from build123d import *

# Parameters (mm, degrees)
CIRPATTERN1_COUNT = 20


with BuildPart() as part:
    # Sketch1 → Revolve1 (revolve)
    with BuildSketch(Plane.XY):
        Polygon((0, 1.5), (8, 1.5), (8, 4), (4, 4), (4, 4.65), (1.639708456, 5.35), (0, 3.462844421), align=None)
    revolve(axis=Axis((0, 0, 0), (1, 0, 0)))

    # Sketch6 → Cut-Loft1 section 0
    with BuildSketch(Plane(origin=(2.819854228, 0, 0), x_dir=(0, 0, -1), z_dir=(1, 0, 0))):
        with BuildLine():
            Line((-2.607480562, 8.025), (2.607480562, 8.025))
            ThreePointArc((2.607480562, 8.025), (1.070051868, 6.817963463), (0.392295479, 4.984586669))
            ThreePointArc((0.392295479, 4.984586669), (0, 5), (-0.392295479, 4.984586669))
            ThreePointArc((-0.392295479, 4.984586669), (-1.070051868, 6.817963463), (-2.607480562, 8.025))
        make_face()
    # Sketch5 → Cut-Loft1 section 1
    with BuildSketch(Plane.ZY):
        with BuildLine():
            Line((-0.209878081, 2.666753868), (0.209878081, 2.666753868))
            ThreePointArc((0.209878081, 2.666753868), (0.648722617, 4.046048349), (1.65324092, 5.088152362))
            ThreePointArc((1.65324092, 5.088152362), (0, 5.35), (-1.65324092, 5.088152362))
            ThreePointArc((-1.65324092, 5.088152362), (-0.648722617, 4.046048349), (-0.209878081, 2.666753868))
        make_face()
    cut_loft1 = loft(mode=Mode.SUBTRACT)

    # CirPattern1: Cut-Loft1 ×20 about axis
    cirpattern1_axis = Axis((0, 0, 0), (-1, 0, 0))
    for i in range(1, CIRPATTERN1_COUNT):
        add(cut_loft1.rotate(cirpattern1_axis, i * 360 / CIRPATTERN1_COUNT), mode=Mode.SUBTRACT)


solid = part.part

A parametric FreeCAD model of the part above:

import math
import FreeCAD as App
import Part
import Sketcher

V = App.Vector
Q = App.Units.Quantity

doc = App.newDocument("Part")
body = doc.addObject("PartDesign::Body", "Body")

# Sketch on XY plane
sketch1 = body.newObject("Sketcher::SketchObject", "Sketch")
sketch1.AttachmentSupport = (doc.getObject("XY_Plane"), [""])
sketch1.MapMode = "FlatFace"
sketch1.addGeometry(Part.LineSegment(V(0, 1.5, 0), V(8, 1.5, 0)), False)
sketch1.addGeometry(Part.LineSegment(V(8, 1.5, 0), V(8, 4, 0)), False)
sketch1.addGeometry(Part.LineSegment(V(8, 4, 0), V(4, 4, 0)), False)
sketch1.addGeometry(Part.LineSegment(V(4, 4, 0), V(4, 4.7, 0)), False)
sketch1.addGeometry(Part.LineSegment(V(4, 4.7, 0), V(1.6, 5.3, 0)), False)
sketch1.addGeometry(Part.LineSegment(V(1.6, 5.3, 0), V(0, 3.5, 0)), False)
sketch1.addGeometry(Part.LineSegment(V(0, 3.5, 0), V(0, 1.5, 0)), False)
sketch1.addConstraint(Sketcher.Constraint("Coincident", 0, 2, 1, 1))
sketch1.addConstraint(Sketcher.Constraint("Coincident", 1, 2, 2, 1))
sketch1.addConstraint(Sketcher.Constraint("Coincident", 2, 2, 3, 1))
sketch1.addConstraint(Sketcher.Constraint("Coincident", 3, 2, 4, 1))
sketch1.addConstraint(Sketcher.Constraint("Coincident", 4, 2, 5, 1))
sketch1.addConstraint(Sketcher.Constraint("Coincident", 5, 2, 6, 1))
sketch1.addConstraint(Sketcher.Constraint("Coincident", 6, 2, 0, 1))
sketch1.addConstraint(Sketcher.Constraint("Horizontal", 0))
sketch1.addConstraint(Sketcher.Constraint("Vertical", 1))
sketch1.addConstraint(Sketcher.Constraint("Horizontal", 2))
sketch1.addConstraint(Sketcher.Constraint("Vertical", 3))
sketch1.addConstraint(Sketcher.Constraint("Vertical", 6))
sketch1.addConstraint(Sketcher.Constraint("PointOnObject", 5, 2, -2))
sketch1.addConstraint(Sketcher.Constraint("DistanceX", 0, 1, 0, 2, Q("8 mm")))
sketch1.addConstraint(Sketcher.Constraint("DistanceX", 2, 2, 2, 1, Q("4 mm")))
sketch1.addConstraint(Sketcher.Constraint("DistanceY", 1, 1, 1, 2, Q("2.5 mm")))
sketch1.addConstraint(Sketcher.Constraint("DistanceY", -1, 1, 1, 2, Q("4 mm")))
sketch1.addConstraint(Sketcher.Constraint("Distance", 5, Q("2.5 mm")))
sketch1.addConstraint(Sketcher.Constraint("DistanceY", 3, 1, 3, 2, Q("0.65 mm")))
sketch1.addConstraint(Sketcher.Constraint("DistanceY", 3, 2, 4, 2, Q("0.7 mm")))
sketch1.addConstraint(Sketcher.Constraint("DistanceY", 6, 2, 6, 1, Q("1.962844 mm")))
revolution = body.newObject("PartDesign::Revolution", "Revolution")
revolution.Profile = sketch1
revolution.ReferenceAxis = (sketch1, ["H_Axis"])
revolution.Angle = 360

# Sketch on YZ plane
sketch2 = body.newObject("Sketcher::SketchObject", "Sketch001")
sketch2.AttachmentSupport = (doc.getObject("YZ_Plane"), [""])
sketch2.MapMode = "FlatFace"
sketch2.AttachmentOffset = App.Placement(V(0, 0, 2.819854), App.Rotation())
sketch2.addGeometry(Part.LineSegment(V(8, -2.6, 0), V(8, 2.6, 0)), False)
sketch2.addGeometry(Part.ArcOfCircle(Part.Circle(V(4.7, 4, 0), V(0, 0, 1), 3.6), math.radians(-86), math.radians(-22)), False)
sketch2.addGeometry(Part.ArcOfCircle(Part.Circle(V(0, 0, 0), V(0, 0, 1), 5), math.radians(-4.5), math.radians(4.5)), False)
sketch2.addGeometry(Part.ArcOfCircle(Part.Circle(V(4.7, -4, 0), V(0, 0, 1), 3.6), math.radians(22), math.radians(86)), False)
sketch2.addConstraint(Sketcher.Constraint("Coincident", 0, 2, 1, 2))
sketch2.addConstraint(Sketcher.Constraint("Coincident", 1, 1, 2, 2))
sketch2.addConstraint(Sketcher.Constraint("Coincident", 2, 1, 3, 2))
sketch2.addConstraint(Sketcher.Constraint("Coincident", 3, 1, 0, 1))
sketch2.addConstraint(Sketcher.Constraint("Vertical", 0))
sketch2.addConstraint(Sketcher.Constraint("Coincident", 2, 3, -1, 1))
sketch2.addConstraint(Sketcher.Constraint("Equal", 1, 3))
sketch2.addConstraint(Sketcher.Constraint("Symmetric", 1, 3, 3, 3, -1))
sketch2.addConstraint(Sketcher.Constraint("Radius", 2, Q("5 mm")))
sketch2.addConstraint(Sketcher.Constraint("DistanceX", -1, 1, 0, 2, Q("8.025 mm")))
sketch2.addConstraint(Sketcher.Constraint("Radius", 1, Q("3.592014 mm")))
sketch2.addConstraint(Sketcher.Constraint("DistanceY", 0, 1, 0, 2, Q("5.214961 mm")))
sketch2.addConstraint(Sketcher.Constraint("DistanceX", -1, 1, 1, 3, Q("4.702761 mm")))

# Sketch on YZ plane
sketch3 = body.newObject("Sketcher::SketchObject", "Sketch002")
sketch3.AttachmentSupport = (doc.getObject("YZ_Plane"), [""])
sketch3.MapMode = "FlatFace"
sketch3.addGeometry(Part.LineSegment(V(2.67, -0.21, 0), V(2.67, 0.21, 0)), False)
sketch3.addGeometry(Part.ArcOfCircle(Part.Circle(V(2.42, 3.38, 0), V(0, 0, 1), 3.18), math.radians(-85), math.radians(-33)), False)
sketch3.addGeometry(Part.ArcOfCircle(Part.Circle(V(0, 0, 0), V(0, 0, 1), 5.35), math.radians(-18), math.radians(18)), False)
sketch3.addGeometry(Part.ArcOfCircle(Part.Circle(V(2.42, -3.38, 0), V(0, 0, 1), 3.18), math.radians(33), math.radians(85)), False)
sketch3.addConstraint(Sketcher.Constraint("Coincident", 0, 2, 1, 1))
sketch3.addConstraint(Sketcher.Constraint("Coincident", 1, 2, 2, 2))
sketch3.addConstraint(Sketcher.Constraint("Coincident", 2, 1, 3, 1))
sketch3.addConstraint(Sketcher.Constraint("Coincident", 3, 2, 0, 1))
sketch3.addConstraint(Sketcher.Constraint("Vertical", 0))
sketch3.addConstraint(Sketcher.Constraint("Coincident", 2, 3, -1, 1))
sketch3.addConstraint(Sketcher.Constraint("Equal", 1, 3))
sketch3.addConstraint(Sketcher.Constraint("Symmetric", 1, 3, 3, 3, -1))
sketch3.addConstraint(Sketcher.Constraint("Radius", 2, Q("5.35 mm")))
sketch3.addConstraint(Sketcher.Constraint("Radius", 1, Q("3.181303 mm")))
sketch3.addConstraint(Sketcher.Constraint("DistanceX", 1, 3, 1, 2, Q("2.671001 mm")))
sketch3.addConstraint(Sketcher.Constraint("DistanceX", 0, 2, 1, 2, Q("2.421398 mm")))
sketch3.addConstraint(Sketcher.Constraint("DistanceY", 0, 1, 0, 2, Q("0.419756 mm")))

subtractiveloft = body.newObject("PartDesign::SubtractiveLoft", "SubtractiveLoft")
subtractiveloft.Profile = sketch2
subtractiveloft.Sections = [sketch3]
doc.recompute()

polarpattern = body.newObject("PartDesign::PolarPattern", "PolarPattern")
polarpattern.Originals = [subtractiveloft]
polarpattern.Axis = (doc.getObject("X_Axis"), [""])
polarpattern.Angle = 360
polarpattern.Occurrences = 20
body.Tip = polarpattern

doc.recompute()
